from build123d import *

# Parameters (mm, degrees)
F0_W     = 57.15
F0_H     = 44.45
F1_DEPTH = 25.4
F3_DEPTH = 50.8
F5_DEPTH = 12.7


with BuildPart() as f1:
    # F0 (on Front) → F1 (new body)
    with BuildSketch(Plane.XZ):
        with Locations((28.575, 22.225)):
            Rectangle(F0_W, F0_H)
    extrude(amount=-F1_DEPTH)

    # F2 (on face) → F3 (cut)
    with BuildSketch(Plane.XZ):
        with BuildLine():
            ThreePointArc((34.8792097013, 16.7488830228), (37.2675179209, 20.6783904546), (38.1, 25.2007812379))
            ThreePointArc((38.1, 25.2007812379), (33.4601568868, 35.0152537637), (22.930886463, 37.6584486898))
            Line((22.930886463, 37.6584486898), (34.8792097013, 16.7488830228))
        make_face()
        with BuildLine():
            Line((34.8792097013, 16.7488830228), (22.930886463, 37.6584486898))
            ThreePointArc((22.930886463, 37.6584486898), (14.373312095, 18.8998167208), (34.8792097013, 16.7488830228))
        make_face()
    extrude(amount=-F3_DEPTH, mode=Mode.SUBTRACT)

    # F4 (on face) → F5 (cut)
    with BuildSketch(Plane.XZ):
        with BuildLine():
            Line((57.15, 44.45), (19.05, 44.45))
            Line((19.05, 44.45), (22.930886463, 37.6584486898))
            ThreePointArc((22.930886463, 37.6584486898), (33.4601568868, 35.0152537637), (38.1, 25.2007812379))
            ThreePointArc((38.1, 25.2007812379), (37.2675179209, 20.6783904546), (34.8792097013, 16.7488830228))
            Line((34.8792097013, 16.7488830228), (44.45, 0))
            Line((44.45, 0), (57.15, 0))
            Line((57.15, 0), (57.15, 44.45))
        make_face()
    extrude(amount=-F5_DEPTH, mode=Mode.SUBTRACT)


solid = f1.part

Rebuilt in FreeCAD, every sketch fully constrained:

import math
import FreeCAD as App
import Part
import Sketcher
Q = App.Units.Quantity

doc = App.newDocument("Part")
body = doc.addObject("PartDesign::Body", "Body")

sketch1 = body.newObject("Sketcher::SketchObject", "Sketch")
sketch1.AttachmentSupport = (doc.getObject("XZ_Plane"), [""])
sketch1.MapMode = "FlatFace"
sketch1.addGeometry(Part.LineSegment(App.Vector(0, 44.45, 0), App.Vector(0, 0, 0)), False)
sketch1.addGeometry(Part.LineSegment(App.Vector(0, 0, 0), App.Vector(57.15, 0, 0)), False)
sketch1.addGeometry(Part.LineSegment(App.Vector(57.15, 0, 0), App.Vector(57.15, 44.45, 0)), False)
sketch1.addGeometry(Part.LineSegment(App.Vector(57.15, 44.45, 0), App.Vector(0, 44.45, 0)), False)
sketch1.addConstraint(Sketcher.Constraint("Coincident", 0, 2, 1, 1))
sketch1.addConstraint(Sketcher.Constraint("Coincident", 1, 2, 2, 1))
sketch1.addConstraint(Sketcher.Constraint("Coincident", 2, 2, 3, 1))
sketch1.addConstraint(Sketcher.Constraint("Coincident", 3, 2, 0, 1))
sketch1.addConstraint(Sketcher.Constraint("Vertical", 0))
sketch1.addConstraint(Sketcher.Constraint("Horizontal", 1))
sketch1.addConstraint(Sketcher.Constraint("Vertical", 2))
sketch1.addConstraint(Sketcher.Constraint("Horizontal", 3))
sketch1.addConstraint(Sketcher.Constraint("Coincident", 0, 2, -1, 1))
sketch1.addConstraint(Sketcher.Constraint("DistanceX", 1, 1, 1, 2, Q("2.25 in")))
sketch1.addConstraint(Sketcher.Constraint("DistanceY", 0, 2, 0, 1, Q("1.75 in")))
pad1 = body.newObject("PartDesign::Pad", "Pad")
pad1.Profile = sketch1
pad1.Length = Q("1 in")
pad1.Reversed = True

sketch2 = body.newObject("Sketcher::SketchObject", "Sketch001")
sketch2.AttachmentSupport = (doc.getObject("XZ_Plane"), [""])
sketch2.MapMode = "FlatFace"
sketch2.addGeometry(Part.ArcOfCircle(Part.Circle(App.Vector(25.4, 25.200781, 0), App.Vector(0, 0, 1), 12.7), math.radians(0), math.radians(101.210749)), False)
sketch2.addGeometry(Part.ArcOfCircle(Part.Circle(App.Vector(25.4, 25.200781, 0), App.Vector(0, 0, 1), 12.7), math.radians(101.210749), math.radians(360)), False)
sketch2.addConstraint(Sketcher.Constraint("Tangent", 0, 1, 1, 2))
sketch2.addConstraint(Sketcher.Constraint("Coincident", 1, 1, 0, 2))
sketch2.addConstraint(Sketcher.Constraint("Horizontal", 1, 3, 0, 1))
sketch2.addConstraint(Sketcher.Constraint("Radius", 0, Q("0.5 in")))
sketch2.addConstraint(Sketcher.Constraint("DistanceX", -1, 1, 0, 3, Q("1 in")))
sketch2.addConstraint(Sketcher.Constraint("DistanceY", -1, 1, 0, 3, Q("25.200781 mm")))
sketch2.addConstraint(Sketcher.Constraint("DistanceY", -1, 1, 1, 1, Q("37.658449 mm")))
pocket1 = body.newObject("PartDesign::Pocket", "Pocket")
pocket1.Profile = sketch2
pocket1.Length = Q("2 in")

sketch3 = body.newObject("Sketcher::SketchObject", "Sketch002")
sketch3.AttachmentSupport = (doc.getObject("XZ_Plane"), [""])
sketch3.MapMode = "FlatFace"
sketch3.addGeometry(Part.LineSegment(App.Vector(57.15, 44.45, 0), App.Vector(19.05, 44.45, 0)), False)
sketch3.addGeometry(Part.LineSegment(App.Vector(19.05, 44.45, 0), App.Vector(22.930886, 37.658449, 0)), False)
sketch3.addGeometry(Part.ArcOfCircle(Part.Circle(App.Vector(25.4, 25.200781, 0), App.Vector(0, 0, 1), 12.7), math.radians(0), math.radians(101.210749)), False)
sketch3.addGeometry(Part.ArcOfCircle(Part.Circle(App.Vector(25.4, 25.200781, 0), App.Vector(0, 0, 1), 12.7), math.radians(-41.720987), math.radians(0)), False)
sketch3.addGeometry(Part.LineSegment(App.Vector(34.87921, 16.748883, 0), App.Vector(44.45, 0, 0)), False)
sketch3.addGeometry(Part.LineSegment(App.Vector(44.45, 0, 0), App.Vector(57.15, 0, 0)), False)
sketch3.addGeometry(Part.LineSegment(App.Vector(57.15, 0, 0), App.Vector(57.15, 44.45, 0)), False)
sketch3.addConstraint(Sketcher.Constraint("Coincident", 0, 2, 1, 1))
sketch3.addConstraint(Sketcher.Constraint("Coincident", 1, 2, 2, 2))
sketch3.addConstraint(Sketcher.Constraint("Tangent", 2, 1, 3, 2))
sketch3.addConstraint(Sketcher.Constraint("Coincident", 3, 1, 4, 1))
sketch3.addConstraint(Sketcher.Constraint("Coincident", 4, 2, 5, 1))
sketch3.addConstraint(Sketcher.Constraint("Coincident", 5, 2, 6, 1))
sketch3.addConstraint(Sketcher.Constraint("Coincident", 6, 2, 0, 1))
sketch3.addConstraint(Sketcher.Constraint("Horizontal", 0))
sketch3.addConstraint(Sketcher.Constraint("Horizontal", 5))
sketch3.addConstraint(Sketcher.Constraint("Vertical", 6))
sketch3.addConstraint(Sketcher.Constraint("Equal", 2, 3))
sketch3.addConstraint(Sketcher.Constraint("PointOnObject", 4, 2, -1))
sketch3.addConstraint(Sketcher.Constraint("Parallel", 1, 4))
sketch3.addConstraint(Sketcher.Constraint("Horizontal", 3, 3, 2, 1))
sketch3.addConstraint(Sketcher.Constraint("Radius", 2, Q("0.5 in")))
sketch3.addConstraint(Sketcher.Constraint("DistanceX", 0, 2, 0, 1, Q("1.5 in")))
sketch3.addConstraint(Sketcher.Constraint("DistanceX", 5, 1, 5, 2, Q("0.5 in")))
sketch3.addConstraint(Sketcher.Constraint("DistanceX", -1, 1, 2, 3, Q("1 in")))
sketch3.addConstraint(Sketcher.Constraint("DistanceY", 6, 1, 6, 2, Q("1.75 in")))
sketch3.addConstraint(Sketcher.Constraint("DistanceX", -1, 1, 0, 2, Q("0.75 in")))
sketch3.addConstraint(Sketcher.Constraint("DistanceY", 3, 1, 2, 1, Q("8.451898 mm")))
sketch3.addConstraint(Sketcher.Constraint("DistanceY", -1, 1, 2, 3, Q("25.200781 mm")))
pocket2 = body.newObject("PartDesign::Pocket", "Pocket001")
pocket2.Profile = sketch3
pocket2.Length = Q("0.5 in")

doc.recompute()
